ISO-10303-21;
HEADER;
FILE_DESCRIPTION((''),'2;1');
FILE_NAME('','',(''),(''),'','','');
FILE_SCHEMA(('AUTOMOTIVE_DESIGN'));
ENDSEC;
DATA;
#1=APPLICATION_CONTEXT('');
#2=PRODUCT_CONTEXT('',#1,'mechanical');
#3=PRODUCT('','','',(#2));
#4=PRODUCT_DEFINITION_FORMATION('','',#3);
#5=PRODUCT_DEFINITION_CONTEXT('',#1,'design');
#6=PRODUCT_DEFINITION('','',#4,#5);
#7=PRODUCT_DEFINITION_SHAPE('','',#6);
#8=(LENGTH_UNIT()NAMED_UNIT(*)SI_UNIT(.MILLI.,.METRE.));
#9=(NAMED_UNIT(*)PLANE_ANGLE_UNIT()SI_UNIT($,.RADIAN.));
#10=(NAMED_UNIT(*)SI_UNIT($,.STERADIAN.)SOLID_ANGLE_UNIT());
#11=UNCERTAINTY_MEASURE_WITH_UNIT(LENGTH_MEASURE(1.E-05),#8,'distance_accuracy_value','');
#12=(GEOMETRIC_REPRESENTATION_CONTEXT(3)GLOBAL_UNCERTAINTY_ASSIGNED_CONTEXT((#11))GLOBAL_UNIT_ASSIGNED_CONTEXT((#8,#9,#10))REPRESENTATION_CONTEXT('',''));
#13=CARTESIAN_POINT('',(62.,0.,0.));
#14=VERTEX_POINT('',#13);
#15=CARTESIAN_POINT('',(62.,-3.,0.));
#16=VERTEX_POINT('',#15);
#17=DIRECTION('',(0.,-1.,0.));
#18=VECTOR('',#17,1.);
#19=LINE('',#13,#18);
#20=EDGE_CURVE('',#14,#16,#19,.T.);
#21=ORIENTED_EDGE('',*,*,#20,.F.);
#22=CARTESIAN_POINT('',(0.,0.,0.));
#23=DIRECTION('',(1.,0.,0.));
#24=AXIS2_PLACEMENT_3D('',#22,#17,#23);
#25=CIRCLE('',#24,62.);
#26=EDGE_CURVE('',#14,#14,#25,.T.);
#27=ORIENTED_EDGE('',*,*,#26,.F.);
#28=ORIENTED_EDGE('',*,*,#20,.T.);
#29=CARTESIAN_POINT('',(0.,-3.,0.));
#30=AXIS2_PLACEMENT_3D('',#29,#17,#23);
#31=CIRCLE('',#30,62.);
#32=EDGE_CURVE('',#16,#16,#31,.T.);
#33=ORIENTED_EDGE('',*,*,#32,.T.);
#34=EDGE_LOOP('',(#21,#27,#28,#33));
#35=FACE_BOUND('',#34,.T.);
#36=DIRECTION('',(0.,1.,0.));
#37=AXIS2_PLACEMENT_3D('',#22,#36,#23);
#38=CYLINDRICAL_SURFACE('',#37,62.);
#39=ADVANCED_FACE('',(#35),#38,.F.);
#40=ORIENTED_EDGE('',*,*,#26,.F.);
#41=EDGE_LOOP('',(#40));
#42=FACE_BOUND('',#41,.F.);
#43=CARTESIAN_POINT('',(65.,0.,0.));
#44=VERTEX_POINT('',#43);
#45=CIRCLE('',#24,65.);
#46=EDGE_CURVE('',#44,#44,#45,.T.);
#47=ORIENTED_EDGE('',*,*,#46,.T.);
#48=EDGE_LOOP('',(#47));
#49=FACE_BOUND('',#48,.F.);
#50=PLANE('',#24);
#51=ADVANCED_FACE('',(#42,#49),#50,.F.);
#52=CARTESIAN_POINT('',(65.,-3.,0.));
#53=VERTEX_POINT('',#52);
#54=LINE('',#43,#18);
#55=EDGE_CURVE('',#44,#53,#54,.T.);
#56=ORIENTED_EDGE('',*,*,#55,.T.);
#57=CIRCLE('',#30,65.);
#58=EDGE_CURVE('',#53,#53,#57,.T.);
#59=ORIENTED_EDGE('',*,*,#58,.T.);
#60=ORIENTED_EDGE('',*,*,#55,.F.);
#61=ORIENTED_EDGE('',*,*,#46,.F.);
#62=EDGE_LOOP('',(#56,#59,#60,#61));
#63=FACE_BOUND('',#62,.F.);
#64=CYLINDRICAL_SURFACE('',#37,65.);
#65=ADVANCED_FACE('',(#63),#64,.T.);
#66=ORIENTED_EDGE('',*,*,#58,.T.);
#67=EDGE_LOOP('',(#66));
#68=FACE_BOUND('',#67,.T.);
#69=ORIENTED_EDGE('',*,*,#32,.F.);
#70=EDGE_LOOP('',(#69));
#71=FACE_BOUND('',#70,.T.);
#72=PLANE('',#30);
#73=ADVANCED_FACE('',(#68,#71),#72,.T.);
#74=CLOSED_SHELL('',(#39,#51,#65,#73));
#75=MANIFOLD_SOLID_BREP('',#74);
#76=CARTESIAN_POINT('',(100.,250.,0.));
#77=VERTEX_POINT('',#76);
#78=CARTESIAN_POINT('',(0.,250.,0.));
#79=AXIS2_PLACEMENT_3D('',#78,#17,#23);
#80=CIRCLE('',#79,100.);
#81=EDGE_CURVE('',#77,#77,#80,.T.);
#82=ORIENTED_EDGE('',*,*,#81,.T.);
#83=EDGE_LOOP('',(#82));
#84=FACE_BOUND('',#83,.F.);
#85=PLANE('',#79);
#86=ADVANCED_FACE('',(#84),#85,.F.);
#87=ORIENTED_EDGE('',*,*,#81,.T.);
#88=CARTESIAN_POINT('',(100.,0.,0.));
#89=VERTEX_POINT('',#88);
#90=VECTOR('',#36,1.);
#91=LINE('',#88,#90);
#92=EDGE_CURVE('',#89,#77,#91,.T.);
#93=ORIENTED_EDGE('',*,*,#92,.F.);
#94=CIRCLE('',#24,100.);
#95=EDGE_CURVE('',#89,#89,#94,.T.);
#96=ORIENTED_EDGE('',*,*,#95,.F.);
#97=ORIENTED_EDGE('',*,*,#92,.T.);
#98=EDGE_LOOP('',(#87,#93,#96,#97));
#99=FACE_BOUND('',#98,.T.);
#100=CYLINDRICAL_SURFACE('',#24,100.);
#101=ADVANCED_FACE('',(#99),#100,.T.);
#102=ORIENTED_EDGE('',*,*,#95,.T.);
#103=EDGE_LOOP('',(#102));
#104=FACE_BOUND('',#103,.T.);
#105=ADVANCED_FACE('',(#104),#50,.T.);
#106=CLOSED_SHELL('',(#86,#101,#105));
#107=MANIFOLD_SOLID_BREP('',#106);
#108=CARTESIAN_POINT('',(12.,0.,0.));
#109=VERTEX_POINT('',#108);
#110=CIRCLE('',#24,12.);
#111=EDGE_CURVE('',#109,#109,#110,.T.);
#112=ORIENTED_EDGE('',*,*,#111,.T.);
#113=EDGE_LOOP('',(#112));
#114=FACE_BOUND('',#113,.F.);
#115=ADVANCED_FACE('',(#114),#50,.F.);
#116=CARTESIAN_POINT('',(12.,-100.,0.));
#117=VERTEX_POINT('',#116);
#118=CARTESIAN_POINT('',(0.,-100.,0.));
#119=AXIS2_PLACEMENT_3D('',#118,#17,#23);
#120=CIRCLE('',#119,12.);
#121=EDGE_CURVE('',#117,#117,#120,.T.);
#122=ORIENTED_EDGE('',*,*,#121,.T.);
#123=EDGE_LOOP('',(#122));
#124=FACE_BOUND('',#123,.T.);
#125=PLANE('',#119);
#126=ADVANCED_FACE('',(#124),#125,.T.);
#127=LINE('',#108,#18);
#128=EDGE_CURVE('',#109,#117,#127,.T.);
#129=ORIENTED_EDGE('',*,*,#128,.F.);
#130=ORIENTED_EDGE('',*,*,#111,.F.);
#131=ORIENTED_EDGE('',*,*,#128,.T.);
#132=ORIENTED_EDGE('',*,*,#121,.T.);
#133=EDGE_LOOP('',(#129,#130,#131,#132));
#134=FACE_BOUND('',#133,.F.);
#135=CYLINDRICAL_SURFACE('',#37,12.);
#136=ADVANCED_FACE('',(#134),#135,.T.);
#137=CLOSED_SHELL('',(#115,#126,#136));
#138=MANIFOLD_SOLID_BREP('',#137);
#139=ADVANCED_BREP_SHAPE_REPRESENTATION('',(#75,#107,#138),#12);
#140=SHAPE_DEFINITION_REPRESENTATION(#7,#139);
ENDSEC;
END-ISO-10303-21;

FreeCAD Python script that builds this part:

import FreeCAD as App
import Part
import Sketcher

V = App.Vector

doc = App.newDocument("Part")
body = doc.addObject("PartDesign::Body", "Body")

sketch1 = body.newObject("Sketcher::SketchObject", "Sketch")
sketch1.AttachmentSupport = (doc.getObject("XZ_Plane"), [""])
sketch1.MapMode = "FlatFace"
sketch1.addGeometry(Part.Circle(V(0, 0, 0), V(0, 0, 1), 12), False)
sketch1.addConstraint(Sketcher.Constraint("Coincident", 0, 3, -1, 1))
sketch1.addConstraint(Sketcher.Constraint("Diameter", 0, 24.0))
pad1 = body.newObject("PartDesign::Pad", "Pad")
pad1.Profile = sketch1
pad1.Length = 100
body2 = doc.addObject("PartDesign::Body", "Body001")

sketch2 = body2.newObject("Sketcher::SketchObject", "Sketch001")
sketch2.AttachmentSupport = (doc.getObject("XZ_Plane001"), [""])
sketch2.MapMode = "FlatFace"
sketch2.addGeometry(Part.Circle(V(0, 0, 0), V(0, 0, 1), 65), False)
sketch2.addGeometry(Part.Circle(V(0, 0, 0), V(0, 0, 1), 62), False)
sketch2.addConstraint(Sketcher.Constraint("Coincident", 0, 3, -1, 1))
sketch2.addConstraint(Sketcher.Constraint("Coincident", 1, 3, -1, 1))
sketch2.addConstraint(Sketcher.Constraint("Diameter", 0, 130.0))
sketch2.addConstraint(Sketcher.Constraint("Diameter", 1, 124.0))
pad2 = body2.newObject("PartDesign::Pad", "Pad001")
pad2.Profile = sketch2
pad2.Length = 3
body3 = doc.addObject("PartDesign::Body", "Body002")

sketch3 = body3.newObject("Sketcher::SketchObject", "Sketch002")
sketch3.AttachmentSupport = (doc.getObject("XZ_Plane002"), [""])
sketch3.MapMode = "FlatFace"
sketch3.addGeometry(Part.Circle(V(0, 0, 0), V(0, 0, 1), 100), False)
sketch3.addConstraint(Sketcher.Constraint("Coincident", 0, 3, -1, 1))
sketch3.addConstraint(Sketcher.Constraint("Diameter", 0, 200.0))
pad3 = body3.newObject("PartDesign::Pad", "Pad002")
pad3.Profile = sketch3
pad3.Length = 250
pad3.Reversed = True

doc.recompute()
